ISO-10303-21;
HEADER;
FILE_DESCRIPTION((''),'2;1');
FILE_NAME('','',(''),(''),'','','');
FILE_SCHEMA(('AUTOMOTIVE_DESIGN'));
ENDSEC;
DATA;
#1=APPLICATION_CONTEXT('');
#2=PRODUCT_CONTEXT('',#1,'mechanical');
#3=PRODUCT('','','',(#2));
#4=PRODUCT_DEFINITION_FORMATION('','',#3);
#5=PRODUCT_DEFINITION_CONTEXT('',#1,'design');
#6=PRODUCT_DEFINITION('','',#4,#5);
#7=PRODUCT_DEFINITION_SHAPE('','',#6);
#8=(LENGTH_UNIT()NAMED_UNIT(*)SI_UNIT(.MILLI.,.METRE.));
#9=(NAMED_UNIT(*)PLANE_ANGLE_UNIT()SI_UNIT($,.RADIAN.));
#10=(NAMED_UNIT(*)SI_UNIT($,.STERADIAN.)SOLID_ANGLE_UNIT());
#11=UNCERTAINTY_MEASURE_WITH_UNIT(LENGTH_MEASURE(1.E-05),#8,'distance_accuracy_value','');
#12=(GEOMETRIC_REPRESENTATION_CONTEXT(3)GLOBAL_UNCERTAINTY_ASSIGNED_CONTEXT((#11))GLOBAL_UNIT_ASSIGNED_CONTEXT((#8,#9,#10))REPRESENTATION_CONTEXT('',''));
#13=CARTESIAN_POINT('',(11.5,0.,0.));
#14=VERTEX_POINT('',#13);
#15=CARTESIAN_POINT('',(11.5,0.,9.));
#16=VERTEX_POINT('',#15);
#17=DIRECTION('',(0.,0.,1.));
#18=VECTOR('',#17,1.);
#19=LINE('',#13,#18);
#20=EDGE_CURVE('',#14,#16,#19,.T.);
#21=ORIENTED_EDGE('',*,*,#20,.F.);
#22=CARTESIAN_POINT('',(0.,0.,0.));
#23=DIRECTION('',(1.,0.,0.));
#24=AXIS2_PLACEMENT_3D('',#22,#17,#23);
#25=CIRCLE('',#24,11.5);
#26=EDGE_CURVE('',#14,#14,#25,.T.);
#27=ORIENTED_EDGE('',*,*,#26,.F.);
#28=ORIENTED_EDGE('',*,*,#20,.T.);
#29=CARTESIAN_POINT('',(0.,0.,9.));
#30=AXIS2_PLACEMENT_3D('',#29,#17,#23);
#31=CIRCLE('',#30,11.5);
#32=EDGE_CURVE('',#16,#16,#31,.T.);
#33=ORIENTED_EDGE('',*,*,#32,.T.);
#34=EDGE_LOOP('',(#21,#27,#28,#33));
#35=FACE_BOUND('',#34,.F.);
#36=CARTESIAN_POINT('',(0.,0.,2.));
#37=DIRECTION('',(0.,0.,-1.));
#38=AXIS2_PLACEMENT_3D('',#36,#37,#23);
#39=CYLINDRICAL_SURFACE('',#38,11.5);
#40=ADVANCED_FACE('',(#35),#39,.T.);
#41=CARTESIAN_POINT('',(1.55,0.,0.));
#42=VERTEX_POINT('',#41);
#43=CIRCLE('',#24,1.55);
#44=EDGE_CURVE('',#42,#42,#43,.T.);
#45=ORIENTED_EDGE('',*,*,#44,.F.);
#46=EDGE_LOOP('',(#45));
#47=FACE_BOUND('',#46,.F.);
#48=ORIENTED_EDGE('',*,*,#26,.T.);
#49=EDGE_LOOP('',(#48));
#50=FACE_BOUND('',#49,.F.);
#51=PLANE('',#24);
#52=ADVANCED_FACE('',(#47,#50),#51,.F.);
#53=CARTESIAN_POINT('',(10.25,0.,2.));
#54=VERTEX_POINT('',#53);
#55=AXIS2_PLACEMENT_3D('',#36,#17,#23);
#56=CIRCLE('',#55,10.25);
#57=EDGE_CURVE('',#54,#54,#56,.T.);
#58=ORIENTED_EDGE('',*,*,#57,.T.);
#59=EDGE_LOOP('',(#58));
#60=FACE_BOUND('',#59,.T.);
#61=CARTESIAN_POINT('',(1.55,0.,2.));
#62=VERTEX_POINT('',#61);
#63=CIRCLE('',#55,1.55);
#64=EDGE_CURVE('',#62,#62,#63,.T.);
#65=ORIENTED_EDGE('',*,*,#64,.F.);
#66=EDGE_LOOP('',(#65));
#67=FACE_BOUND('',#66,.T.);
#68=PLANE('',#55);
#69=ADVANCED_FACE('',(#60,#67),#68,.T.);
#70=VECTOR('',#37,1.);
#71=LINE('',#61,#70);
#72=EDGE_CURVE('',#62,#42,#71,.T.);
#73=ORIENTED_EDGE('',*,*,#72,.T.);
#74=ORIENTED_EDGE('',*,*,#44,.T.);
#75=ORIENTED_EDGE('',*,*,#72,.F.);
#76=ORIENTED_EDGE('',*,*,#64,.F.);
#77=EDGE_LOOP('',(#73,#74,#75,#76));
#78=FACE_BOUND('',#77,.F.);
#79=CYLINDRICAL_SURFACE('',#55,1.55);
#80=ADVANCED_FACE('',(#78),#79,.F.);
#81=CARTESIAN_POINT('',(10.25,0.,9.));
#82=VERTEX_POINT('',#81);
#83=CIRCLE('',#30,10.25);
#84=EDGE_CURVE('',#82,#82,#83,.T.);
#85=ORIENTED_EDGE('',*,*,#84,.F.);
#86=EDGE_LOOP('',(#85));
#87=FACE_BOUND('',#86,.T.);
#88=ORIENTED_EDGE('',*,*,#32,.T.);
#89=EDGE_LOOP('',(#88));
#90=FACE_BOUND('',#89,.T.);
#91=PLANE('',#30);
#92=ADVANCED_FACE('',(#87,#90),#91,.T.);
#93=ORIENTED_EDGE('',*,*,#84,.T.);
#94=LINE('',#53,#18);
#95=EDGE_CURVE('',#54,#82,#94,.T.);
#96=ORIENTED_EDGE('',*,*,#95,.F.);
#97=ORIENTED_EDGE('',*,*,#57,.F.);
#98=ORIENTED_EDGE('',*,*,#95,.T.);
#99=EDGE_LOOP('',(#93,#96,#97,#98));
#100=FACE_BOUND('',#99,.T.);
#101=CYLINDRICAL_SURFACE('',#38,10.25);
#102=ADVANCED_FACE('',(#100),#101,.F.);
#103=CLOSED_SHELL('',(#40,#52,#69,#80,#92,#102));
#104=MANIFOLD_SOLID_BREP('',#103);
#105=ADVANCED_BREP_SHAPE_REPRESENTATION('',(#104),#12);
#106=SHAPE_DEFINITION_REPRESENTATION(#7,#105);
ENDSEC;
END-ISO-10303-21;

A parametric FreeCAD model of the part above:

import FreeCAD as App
import Part
import Sketcher
from FreeCAD import Vector
Q = App.Units.Quantity

doc = App.newDocument("Part")
body = doc.addObject("PartDesign::Body", "Body")

sketch1 = body.newObject("Sketcher::SketchObject", "Sketch")
sketch1.AttachmentSupport = (doc.getObject("XY_Plane"), [""])
sketch1.MapMode = "FlatFace"
sketch1.addGeometry(Part.Circle(Vector(0, 0, 0), Vector(0, 0, 1), 12), False)
sketch1.addConstraint([
    Sketcher.Constraint("Coincident", 0, 3, -1, 1),
    Sketcher.Constraint("Diameter", 0, Q("23 mm")),
])
pad1 = body.newObject("PartDesign::Pad", "Pad")
pad1.Profile = sketch1
pad1.Length = 2

sketch2 = body.newObject("Sketcher::SketchObject", "Sketch001")
sketch2.AttachmentSupport = (doc.getObject("XY_Plane"), [""])
sketch2.MapMode = "FlatFace"
sketch2.AttachmentOffset = App.Placement(Vector(0, 0, 2), App.Rotation())
sketch2.addGeometry([
    Part.Circle(Vector(0, 0, 0), Vector(0, 0, 1), 12),
    Part.Circle(Vector(0, 0, 0), Vector(0, 0, 1), 10),
], False)
sketch2.addConstraint([
    Sketcher.Constraint("Coincident", 0, 3, -1, 1),
    Sketcher.Constraint("Coincident", 1, 3, -1, 1),
    Sketcher.Constraint("Diameter", 0, Q("23 mm")),
    Sketcher.Constraint("Diameter", 1, Q("20.5 mm")),
])
pad2 = body.newObject("PartDesign::Pad", "Pad001")
pad2.Profile = sketch2
pad2.Length = 7

sketch3 = body.newObject("Sketcher::SketchObject", "Sketch002")
sketch3.AttachmentSupport = (doc.getObject("XY_Plane"), [""])
sketch3.MapMode = "FlatFace"
sketch3.AttachmentOffset = App.Placement(Vector(0, 0, 2), App.Rotation())
sketch3.addGeometry(Part.Circle(Vector(0, 0, 0), Vector(0, 0, 1), 1.6), False)
sketch3.addConstraint([
    Sketcher.Constraint("Coincident", 0, 3, -1, 1),
    Sketcher.Constraint("Diameter", 0, Q("3.1 mm")),
])
pocket1 = body.newObject("PartDesign::Pocket", "Pocket")
pocket1.Profile = sketch3
pocket1.Length = 25

doc.recompute()
